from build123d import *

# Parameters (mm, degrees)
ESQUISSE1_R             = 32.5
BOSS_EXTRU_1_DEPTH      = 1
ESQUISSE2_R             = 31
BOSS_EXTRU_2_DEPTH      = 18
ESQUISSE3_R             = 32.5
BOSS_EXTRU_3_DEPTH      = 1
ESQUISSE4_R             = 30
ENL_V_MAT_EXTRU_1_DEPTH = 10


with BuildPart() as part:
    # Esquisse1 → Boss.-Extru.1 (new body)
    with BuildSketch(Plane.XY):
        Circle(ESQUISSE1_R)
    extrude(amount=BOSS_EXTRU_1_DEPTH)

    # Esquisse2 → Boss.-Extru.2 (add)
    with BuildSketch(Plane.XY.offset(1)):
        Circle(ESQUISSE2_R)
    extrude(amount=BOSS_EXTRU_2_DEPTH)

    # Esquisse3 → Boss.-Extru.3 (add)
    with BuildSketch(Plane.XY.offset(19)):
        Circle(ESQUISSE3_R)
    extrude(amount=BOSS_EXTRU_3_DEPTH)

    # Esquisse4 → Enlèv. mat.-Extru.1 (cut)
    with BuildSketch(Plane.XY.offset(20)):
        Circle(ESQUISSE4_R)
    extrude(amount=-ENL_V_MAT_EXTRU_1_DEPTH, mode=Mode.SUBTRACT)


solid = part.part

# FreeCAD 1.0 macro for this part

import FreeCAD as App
import Part
import Sketcher
from FreeCAD import Vector

doc = App.newDocument("Part")
body = doc.addObject("PartDesign::Body", "Body")

# Sketch on XY plane
sketch1 = body.newObject("Sketcher::SketchObject", "Sketch")
sketch1.AttachmentSupport = (doc.getObject("XY_Plane"), [""])
sketch1.MapMode = "FlatFace"
sketch1.addGeometry(Part.Circle(Vector(0, 0, 0), Vector(0, 0, 1), 32), False)
sketch1.addConstraint(Sketcher.Constraint("Coincident", 0, 3, -1, 1))
sketch1.addConstraint(Sketcher.Constraint("Diameter", 0, 65.0))
pad1 = body.newObject("PartDesign::Pad", "Pad")
pad1.Profile = sketch1
pad1.Length = 1

# Sketch on XY plane
sketch2 = body.newObject("Sketcher::SketchObject", "Sketch001")
sketch2.AttachmentSupport = (doc.getObject("XY_Plane"), [""])
sketch2.MapMode = "FlatFace"
sketch2.AttachmentOffset = App.Placement(Vector(0, 0, 1), App.Rotation())
sketch2.addGeometry(Part.Circle(Vector(0, 0, 0), Vector(0, 0, 1), 31), False)
sketch2.addConstraint(Sketcher.Constraint("Coincident", 0, 3, -1, 1))
sketch2.addConstraint(Sketcher.Constraint("Diameter", 0, 62.0))
pad2 = body.newObject("PartDesign::Pad", "Pad001")
pad2.Profile = sketch2
pad2.Length = 18

# Sketch on XY plane
sketch3 = body.newObject("Sketcher::SketchObject", "Sketch002")
sketch3.AttachmentSupport = (doc.getObject("XY_Plane"), [""])
sketch3.MapMode = "FlatFace"
sketch3.AttachmentOffset = App.Placement(Vector(0, 0, 19), App.Rotation())
sketch3.addGeometry(Part.Circle(Vector(0, 0, 0), Vector(0, 0, 1), 32), False)
sketch3.addConstraint(Sketcher.Constraint("Coincident", 0, 3, -1, 1))
sketch3.addConstraint(Sketcher.Constraint("Diameter", 0, 65.0))
pad3 = body.newObject("PartDesign::Pad", "Pad002")
pad3.Profile = sketch3
pad3.Length = 1

# Sketch on XY plane
sketch4 = body.newObject("Sketcher::SketchObject", "Sketch003")
sketch4.AttachmentSupport = (doc.getObject("XY_Plane"), [""])
sketch4.MapMode = "FlatFace"
sketch4.AttachmentOffset = App.Placement(Vector(0, 0, 20), App.Rotation())
sketch4.addGeometry(Part.Circle(Vector(0, 0, 0), Vector(0, 0, 1), 30), False)
sketch4.addConstraint(Sketcher.Constraint("Coincident", 0, 3, -1, 1))
sketch4.addConstraint(Sketcher.Constraint("Diameter", 0, 60.0))
pocket1 = body.newObject("PartDesign::Pocket", "Pocket")
pocket1.Profile = sketch4
pocket1.Length = 10

doc.recompute()
